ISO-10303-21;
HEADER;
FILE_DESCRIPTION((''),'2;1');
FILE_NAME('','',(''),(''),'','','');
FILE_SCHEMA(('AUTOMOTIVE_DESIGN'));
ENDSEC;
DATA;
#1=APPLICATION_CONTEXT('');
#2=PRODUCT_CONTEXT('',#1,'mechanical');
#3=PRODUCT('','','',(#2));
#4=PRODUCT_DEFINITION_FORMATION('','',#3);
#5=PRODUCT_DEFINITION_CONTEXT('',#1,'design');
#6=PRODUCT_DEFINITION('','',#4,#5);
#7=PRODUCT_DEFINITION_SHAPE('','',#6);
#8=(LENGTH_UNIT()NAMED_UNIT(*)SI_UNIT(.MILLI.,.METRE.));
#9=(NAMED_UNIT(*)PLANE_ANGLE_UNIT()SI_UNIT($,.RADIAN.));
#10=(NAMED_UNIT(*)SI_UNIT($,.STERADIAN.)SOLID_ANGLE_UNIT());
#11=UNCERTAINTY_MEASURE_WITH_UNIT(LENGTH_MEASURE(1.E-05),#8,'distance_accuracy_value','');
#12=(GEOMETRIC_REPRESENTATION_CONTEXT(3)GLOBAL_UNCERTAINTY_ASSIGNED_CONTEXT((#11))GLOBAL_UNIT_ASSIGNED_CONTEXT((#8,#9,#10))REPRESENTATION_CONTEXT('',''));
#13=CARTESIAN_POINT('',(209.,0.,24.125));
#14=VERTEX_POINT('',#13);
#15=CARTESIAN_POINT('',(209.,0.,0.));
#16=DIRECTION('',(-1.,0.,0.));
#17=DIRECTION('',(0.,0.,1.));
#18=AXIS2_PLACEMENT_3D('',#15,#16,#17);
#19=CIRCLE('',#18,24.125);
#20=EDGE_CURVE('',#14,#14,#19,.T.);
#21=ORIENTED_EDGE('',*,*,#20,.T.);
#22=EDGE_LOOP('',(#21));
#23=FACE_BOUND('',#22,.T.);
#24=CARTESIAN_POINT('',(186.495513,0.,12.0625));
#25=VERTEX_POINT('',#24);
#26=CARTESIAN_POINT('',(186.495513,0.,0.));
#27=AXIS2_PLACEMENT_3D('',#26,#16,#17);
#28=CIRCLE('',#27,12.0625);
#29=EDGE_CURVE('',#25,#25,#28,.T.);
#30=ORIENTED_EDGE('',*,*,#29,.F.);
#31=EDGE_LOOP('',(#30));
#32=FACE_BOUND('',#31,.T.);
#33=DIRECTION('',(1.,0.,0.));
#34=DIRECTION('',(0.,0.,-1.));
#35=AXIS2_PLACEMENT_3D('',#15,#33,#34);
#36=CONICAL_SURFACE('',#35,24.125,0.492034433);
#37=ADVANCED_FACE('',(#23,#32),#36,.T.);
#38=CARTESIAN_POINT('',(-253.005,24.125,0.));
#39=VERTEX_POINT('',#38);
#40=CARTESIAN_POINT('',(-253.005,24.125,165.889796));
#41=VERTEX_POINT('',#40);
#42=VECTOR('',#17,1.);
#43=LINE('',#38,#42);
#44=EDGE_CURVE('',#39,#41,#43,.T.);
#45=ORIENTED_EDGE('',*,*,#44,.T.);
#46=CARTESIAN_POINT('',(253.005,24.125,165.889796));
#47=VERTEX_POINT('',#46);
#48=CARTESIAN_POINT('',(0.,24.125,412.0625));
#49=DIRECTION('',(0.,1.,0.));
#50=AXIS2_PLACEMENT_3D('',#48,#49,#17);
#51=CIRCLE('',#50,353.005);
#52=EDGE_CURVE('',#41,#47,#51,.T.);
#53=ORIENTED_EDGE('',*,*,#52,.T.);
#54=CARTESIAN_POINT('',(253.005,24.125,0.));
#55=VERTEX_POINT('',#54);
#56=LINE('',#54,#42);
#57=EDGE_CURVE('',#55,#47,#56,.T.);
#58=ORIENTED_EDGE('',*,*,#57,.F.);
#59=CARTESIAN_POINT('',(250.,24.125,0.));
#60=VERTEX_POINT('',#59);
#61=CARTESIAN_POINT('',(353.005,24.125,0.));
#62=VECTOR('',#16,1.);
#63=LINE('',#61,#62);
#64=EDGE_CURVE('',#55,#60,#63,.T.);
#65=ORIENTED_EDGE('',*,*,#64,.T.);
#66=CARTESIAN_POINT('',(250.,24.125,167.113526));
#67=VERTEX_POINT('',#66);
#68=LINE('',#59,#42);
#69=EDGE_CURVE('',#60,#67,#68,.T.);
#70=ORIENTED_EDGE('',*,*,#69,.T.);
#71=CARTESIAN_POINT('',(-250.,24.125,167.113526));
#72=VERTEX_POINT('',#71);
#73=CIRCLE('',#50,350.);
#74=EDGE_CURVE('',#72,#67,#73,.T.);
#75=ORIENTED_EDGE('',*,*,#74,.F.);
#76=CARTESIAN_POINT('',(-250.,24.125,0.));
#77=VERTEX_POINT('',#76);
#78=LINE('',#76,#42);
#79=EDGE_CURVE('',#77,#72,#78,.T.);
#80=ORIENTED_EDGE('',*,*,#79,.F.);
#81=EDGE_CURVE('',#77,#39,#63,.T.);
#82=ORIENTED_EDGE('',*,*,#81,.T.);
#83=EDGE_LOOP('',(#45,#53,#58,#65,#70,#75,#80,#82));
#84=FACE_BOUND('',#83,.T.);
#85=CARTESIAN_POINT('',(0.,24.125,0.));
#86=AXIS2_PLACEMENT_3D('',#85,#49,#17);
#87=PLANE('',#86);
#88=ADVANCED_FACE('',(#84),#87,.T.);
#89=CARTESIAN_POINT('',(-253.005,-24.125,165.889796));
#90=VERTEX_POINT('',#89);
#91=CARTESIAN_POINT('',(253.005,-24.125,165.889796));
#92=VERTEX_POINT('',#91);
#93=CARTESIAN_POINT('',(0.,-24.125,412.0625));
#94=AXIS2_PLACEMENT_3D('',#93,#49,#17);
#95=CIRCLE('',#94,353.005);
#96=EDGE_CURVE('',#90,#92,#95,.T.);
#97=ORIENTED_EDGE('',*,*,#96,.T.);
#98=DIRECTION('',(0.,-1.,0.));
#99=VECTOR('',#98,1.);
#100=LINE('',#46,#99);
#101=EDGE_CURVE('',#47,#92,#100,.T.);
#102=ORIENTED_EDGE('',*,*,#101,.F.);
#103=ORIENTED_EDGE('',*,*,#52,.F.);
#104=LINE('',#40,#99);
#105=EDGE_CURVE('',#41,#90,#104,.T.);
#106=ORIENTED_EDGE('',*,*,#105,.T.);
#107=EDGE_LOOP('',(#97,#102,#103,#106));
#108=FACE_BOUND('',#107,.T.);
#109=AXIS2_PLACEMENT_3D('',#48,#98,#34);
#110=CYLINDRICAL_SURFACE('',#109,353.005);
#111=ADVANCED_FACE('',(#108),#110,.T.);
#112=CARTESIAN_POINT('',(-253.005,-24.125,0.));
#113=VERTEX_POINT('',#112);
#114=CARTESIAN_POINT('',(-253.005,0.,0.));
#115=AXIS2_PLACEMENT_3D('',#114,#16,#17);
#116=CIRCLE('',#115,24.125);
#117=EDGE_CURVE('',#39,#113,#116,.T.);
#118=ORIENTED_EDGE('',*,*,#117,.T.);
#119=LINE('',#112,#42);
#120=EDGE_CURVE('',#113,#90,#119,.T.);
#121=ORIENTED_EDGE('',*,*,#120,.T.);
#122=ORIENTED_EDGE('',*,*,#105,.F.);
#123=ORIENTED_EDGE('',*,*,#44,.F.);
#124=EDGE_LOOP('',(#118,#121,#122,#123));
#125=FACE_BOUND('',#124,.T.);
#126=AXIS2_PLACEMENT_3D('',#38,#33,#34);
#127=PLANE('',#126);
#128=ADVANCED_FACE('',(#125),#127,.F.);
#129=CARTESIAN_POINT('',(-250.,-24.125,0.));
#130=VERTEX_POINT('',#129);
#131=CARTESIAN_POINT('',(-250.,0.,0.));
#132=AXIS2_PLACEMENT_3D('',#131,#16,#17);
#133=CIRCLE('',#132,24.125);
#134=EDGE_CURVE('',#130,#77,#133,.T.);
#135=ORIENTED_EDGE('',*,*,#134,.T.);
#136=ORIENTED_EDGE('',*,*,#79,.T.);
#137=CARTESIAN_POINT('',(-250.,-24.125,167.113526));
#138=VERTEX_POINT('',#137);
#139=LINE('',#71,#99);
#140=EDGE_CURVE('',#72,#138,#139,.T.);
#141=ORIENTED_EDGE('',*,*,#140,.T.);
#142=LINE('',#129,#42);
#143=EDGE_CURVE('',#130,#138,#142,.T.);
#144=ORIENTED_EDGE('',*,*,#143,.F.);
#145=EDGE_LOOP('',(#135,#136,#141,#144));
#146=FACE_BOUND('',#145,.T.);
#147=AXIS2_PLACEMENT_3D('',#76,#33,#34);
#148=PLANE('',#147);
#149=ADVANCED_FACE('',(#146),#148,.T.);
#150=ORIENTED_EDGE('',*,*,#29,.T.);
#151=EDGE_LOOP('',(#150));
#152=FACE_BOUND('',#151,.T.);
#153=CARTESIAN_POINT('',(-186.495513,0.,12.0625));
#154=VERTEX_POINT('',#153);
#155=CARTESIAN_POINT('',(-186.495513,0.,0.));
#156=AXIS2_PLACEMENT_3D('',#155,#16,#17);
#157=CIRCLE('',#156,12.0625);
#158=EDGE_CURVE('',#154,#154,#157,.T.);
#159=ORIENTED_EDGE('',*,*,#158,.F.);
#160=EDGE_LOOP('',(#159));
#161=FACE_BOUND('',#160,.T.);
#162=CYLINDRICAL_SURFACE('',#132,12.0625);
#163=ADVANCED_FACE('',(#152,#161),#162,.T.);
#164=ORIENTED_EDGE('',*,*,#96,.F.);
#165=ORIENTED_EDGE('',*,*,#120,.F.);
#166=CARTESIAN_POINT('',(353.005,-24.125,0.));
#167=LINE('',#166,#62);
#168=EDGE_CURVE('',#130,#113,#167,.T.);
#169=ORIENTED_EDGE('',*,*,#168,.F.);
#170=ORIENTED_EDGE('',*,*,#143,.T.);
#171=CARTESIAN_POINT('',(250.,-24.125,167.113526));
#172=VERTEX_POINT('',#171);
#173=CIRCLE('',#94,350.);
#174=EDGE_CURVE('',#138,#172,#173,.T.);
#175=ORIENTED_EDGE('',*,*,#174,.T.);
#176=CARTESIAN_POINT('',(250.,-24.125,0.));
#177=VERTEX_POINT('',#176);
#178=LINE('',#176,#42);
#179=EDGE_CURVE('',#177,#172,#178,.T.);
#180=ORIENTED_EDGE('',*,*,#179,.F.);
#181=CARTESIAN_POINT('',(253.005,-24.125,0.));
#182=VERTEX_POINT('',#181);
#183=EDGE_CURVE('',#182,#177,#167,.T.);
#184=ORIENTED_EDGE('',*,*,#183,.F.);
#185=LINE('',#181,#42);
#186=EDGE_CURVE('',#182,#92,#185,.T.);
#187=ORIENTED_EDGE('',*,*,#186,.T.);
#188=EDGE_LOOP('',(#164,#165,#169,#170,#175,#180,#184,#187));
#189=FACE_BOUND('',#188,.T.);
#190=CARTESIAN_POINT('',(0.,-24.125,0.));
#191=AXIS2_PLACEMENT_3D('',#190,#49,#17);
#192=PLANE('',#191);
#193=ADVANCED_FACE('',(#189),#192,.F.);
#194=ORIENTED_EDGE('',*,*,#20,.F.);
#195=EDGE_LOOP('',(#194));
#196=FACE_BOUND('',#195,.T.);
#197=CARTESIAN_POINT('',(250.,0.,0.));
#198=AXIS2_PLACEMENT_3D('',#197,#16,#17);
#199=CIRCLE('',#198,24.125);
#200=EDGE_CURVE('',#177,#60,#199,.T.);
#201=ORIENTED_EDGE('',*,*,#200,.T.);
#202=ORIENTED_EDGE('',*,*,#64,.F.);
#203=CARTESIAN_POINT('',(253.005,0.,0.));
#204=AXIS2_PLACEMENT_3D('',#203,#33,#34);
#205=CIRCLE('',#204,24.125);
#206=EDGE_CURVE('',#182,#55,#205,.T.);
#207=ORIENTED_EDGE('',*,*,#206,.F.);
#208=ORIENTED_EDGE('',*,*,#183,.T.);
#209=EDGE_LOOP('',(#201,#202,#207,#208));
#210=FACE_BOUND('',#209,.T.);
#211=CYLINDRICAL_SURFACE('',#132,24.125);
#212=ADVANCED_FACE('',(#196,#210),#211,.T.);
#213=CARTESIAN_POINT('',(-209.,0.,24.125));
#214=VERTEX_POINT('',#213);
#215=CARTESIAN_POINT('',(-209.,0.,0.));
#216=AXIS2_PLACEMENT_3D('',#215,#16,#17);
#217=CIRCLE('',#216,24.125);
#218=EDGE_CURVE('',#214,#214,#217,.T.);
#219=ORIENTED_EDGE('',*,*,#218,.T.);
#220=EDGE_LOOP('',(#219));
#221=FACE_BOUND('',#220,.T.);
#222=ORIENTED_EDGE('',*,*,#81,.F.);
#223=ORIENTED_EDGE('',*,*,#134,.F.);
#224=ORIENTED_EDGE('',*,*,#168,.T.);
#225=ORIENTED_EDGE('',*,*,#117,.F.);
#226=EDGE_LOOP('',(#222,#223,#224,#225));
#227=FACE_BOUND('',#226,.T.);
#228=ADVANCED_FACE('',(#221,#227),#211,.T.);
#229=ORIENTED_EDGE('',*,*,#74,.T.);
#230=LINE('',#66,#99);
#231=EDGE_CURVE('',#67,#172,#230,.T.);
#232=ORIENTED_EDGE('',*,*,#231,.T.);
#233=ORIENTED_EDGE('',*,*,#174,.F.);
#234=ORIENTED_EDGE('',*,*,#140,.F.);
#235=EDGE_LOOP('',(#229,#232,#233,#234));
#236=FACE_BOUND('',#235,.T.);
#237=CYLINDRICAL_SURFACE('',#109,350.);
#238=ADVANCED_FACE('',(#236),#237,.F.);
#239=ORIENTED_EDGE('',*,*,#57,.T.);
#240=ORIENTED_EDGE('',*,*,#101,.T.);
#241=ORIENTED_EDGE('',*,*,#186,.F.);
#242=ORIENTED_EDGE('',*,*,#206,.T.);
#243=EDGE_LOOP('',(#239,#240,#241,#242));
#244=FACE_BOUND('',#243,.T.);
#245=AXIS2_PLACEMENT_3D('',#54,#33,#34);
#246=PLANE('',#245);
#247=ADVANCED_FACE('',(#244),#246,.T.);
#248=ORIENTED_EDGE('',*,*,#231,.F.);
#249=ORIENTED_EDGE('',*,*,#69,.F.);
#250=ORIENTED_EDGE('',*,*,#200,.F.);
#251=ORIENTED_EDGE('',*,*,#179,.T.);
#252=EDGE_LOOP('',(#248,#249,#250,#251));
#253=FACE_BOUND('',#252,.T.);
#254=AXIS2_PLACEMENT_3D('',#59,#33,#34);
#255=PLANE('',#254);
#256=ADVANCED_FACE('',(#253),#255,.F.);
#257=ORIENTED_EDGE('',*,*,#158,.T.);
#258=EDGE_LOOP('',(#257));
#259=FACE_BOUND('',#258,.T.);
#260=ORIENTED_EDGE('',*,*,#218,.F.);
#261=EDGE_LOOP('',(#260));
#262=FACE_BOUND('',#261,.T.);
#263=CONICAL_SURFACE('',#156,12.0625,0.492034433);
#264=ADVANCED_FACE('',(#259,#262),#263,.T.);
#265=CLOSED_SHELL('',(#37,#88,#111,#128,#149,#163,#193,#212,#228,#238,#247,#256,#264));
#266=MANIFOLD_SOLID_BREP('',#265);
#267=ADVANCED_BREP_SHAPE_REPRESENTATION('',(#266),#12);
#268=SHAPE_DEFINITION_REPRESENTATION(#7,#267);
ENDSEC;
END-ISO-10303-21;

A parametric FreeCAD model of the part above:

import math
import FreeCAD as App
import Part
import Sketcher

doc = App.newDocument("Part")
body = doc.addObject("PartDesign::Body", "Body")

# Sketch on XZ plane
sketch1 = doc.addObject("Sketcher::SketchObject", "Sketch")
body.addObject(sketch1)
sketch1.AttachmentSupport = (doc.XZ_Plane, [""])
sketch1.MapMode = "FlatFace"
sketch1.addGeometry(Part.LineSegment(App.Vector(-250, 0, 0), App.Vector(250, 0, 0)), False)
sketch1.addGeometry(Part.LineSegment(App.Vector(250, 0, 0), App.Vector(250, -24, 0)), False)
sketch1.addGeometry(Part.LineSegment(App.Vector(250, -24, 0), App.Vector(209, -24, 0)), False)
sketch1.addGeometry(Part.LineSegment(App.Vector(209, -24, 0), App.Vector(186, -12, 0)), False)
sketch1.addGeometry(Part.LineSegment(App.Vector(186, -12, 0), App.Vector(-186, -12, 0)), False)
sketch1.addGeometry(Part.LineSegment(App.Vector(-186, -12, 0), App.Vector(-209, -24, 0)), False)
sketch1.addGeometry(Part.LineSegment(App.Vector(-209, -24, 0), App.Vector(-250, -24, 0)), False)
sketch1.addGeometry(Part.LineSegment(App.Vector(-250, -24, 0), App.Vector(-250, 0, 0)), False)
sketch1.addConstraint(Sketcher.Constraint("Coincident", 0, 2, 1, 1))
sketch1.addConstraint(Sketcher.Constraint("Coincident", 1, 2, 2, 1))
sketch1.addConstraint(Sketcher.Constraint("Coincident", 2, 2, 3, 1))
sketch1.addConstraint(Sketcher.Constraint("Coincident", 3, 2, 4, 1))
sketch1.addConstraint(Sketcher.Constraint("Coincident", 4, 2, 5, 1))
sketch1.addConstraint(Sketcher.Constraint("Coincident", 5, 2, 6, 1))
sketch1.addConstraint(Sketcher.Constraint("Coincident", 6, 2, 7, 1))
sketch1.addConstraint(Sketcher.Constraint("Coincident", 7, 2, 0, 1))
sketch1.addConstraint(Sketcher.Constraint("Horizontal", 0))
sketch1.addConstraint(Sketcher.Constraint("Vertical", 1))
sketch1.addConstraint(Sketcher.Constraint("Horizontal", 2))
sketch1.addConstraint(Sketcher.Constraint("Horizontal", 4))
sketch1.addConstraint(Sketcher.Constraint("Horizontal", 6))
sketch1.addConstraint(Sketcher.Constraint("Vertical", 7))
sketch1.addConstraint(Sketcher.Constraint("Symmetric", 0, 2, 7, 2, -1, 1))
sketch1.addConstraint(Sketcher.Constraint("Symmetric", 2, 2, 5, 2, -2))
sketch1.addConstraint(Sketcher.Constraint("Equal", 3, 5))
sketch1.addConstraint(Sketcher.Constraint("DistanceX", 0, 1, 0, 2, 500.0))
sketch1.addConstraint(Sketcher.Constraint("DistanceX", 2, 2, 2, 1, 41.0))
sketch1.addConstraint(Sketcher.Constraint("DistanceY", 1, 2, 1, 1, 24.125))
sketch1.addConstraint(Sketcher.Constraint("DistanceY", 3, 2, -1, 1, 12.0625))
sketch1.addConstraint(Sketcher.Constraint("DistanceX", 4, 2, 4, 1, 372.991026))
revolution = doc.addObject("PartDesign::Revolution", "Revolution")
body.addObject(revolution)
revolution.Profile = sketch1
revolution.ReferenceAxis = (sketch1, ["H_Axis"])
revolution.Angle = 360

# Sketch on XZ plane
sketch2 = doc.addObject("Sketcher::SketchObject", "Sketch001")
body.addObject(sketch2)
sketch2.AttachmentSupport = (doc.XZ_Plane, [""])
sketch2.MapMode = "FlatFace"
sketch2.addGeometry(Part.ArcOfCircle(Part.Circle(App.Vector(0, 412.1, 0), App.Vector(0, 0, 1), 353), math.radians(-44), math.radians(224)), False)
sketch2.addGeometry(Part.LineSegment(App.Vector(253, 165.9, 0), App.Vector(253, -24.1, 0)), False)
sketch2.addGeometry(Part.LineSegment(App.Vector(253, -24.1, 0), App.Vector(250, -24.1, 0)), False)
sketch2.addGeometry(Part.LineSegment(App.Vector(250, -24.1, 0), App.Vector(250, 167.1, 0)), False)
sketch2.addGeometry(Part.ArcOfCircle(Part.Circle(App.Vector(0, 412.1, 0), App.Vector(0, 0, 1), 350), math.radians(-44), math.radians(224)), False)
sketch2.addGeometry(Part.LineSegment(App.Vector(-250, 167.1, 0), App.Vector(-250, -24.1, 0)), False)
sketch2.addGeometry(Part.LineSegment(App.Vector(-250, -24.1, 0), App.Vector(-253, -24.1, 0)), False)
sketch2.addGeometry(Part.LineSegment(App.Vector(-253, -24.1, 0), App.Vector(-253, 165.9, 0)), False)
sketch2.addConstraint(Sketcher.Constraint("Coincident", 0, 1, 1, 1))
sketch2.addConstraint(Sketcher.Constraint("Coincident", 1, 2, 2, 1))
sketch2.addConstraint(Sketcher.Constraint("Coincident", 2, 2, 3, 1))
sketch2.addConstraint(Sketcher.Constraint("Coincident", 3, 2, 4, 1))
sketch2.addConstraint(Sketcher.Constraint("Coincident", 4, 2, 5, 1))
sketch2.addConstraint(Sketcher.Constraint("Coincident", 5, 2, 6, 1))
sketch2.addConstraint(Sketcher.Constraint("Coincident", 6, 2, 7, 1))
sketch2.addConstraint(Sketcher.Constraint("Coincident", 7, 2, 0, 2))
sketch2.addConstraint(Sketcher.Constraint("Vertical", 1))
sketch2.addConstraint(Sketcher.Constraint("Horizontal", 2))
sketch2.addConstraint(Sketcher.Constraint("Vertical", 3))
sketch2.addConstraint(Sketcher.Constraint("Vertical", 5))
sketch2.addConstraint(Sketcher.Constraint("Horizontal", 6))
sketch2.addConstraint(Sketcher.Constraint("Vertical", 7))
sketch2.addConstraint(Sketcher.Constraint("Coincident", 4, 3, 0, 3))
sketch2.addConstraint(Sketcher.Constraint("Symmetric", 3, 2, 4, 2, -2))
sketch2.addConstraint(Sketcher.Constraint("Symmetric", 1, 2, 6, 2, -2))
sketch2.addConstraint(Sketcher.Constraint("Radius", 4, 350.0))
sketch2.addConstraint(Sketcher.Constraint("DistanceX", -1, 1, 2, 2, 250.0))
sketch2.addConstraint(Sketcher.Constraint("Radius", 0, 353.005))
sketch2.addConstraint(Sketcher.Constraint("DistanceX", 2, 2, 2, 1, 3.005))
sketch2.addConstraint(Sketcher.Constraint("DistanceY", 1, 2, -1, 1, 24.125))
sketch2.addConstraint(Sketcher.Constraint("DistanceY", -1, 1, 0, 3, 412.0625))
pad1 = doc.addObject("PartDesign::Pad", "Pad")
body.addObject(pad1)
pad1.Profile = sketch2
pad1.Length = 48.25
pad1.Midplane = True

# Sketch on YZ plane
sketch3 = doc.addObject("Sketcher::SketchObject", "Sketch002")
body.addObject(sketch3)
sketch3.AttachmentSupport = (doc.YZ_Plane, [""])
sketch3.MapMode = "FlatFace"
sketch3.AttachmentOffset = App.Placement(App.Vector(0, 0, -253.005), App.Rotation())
sketch3.addGeometry(Part.ArcOfCircle(Part.Circle(App.Vector(0, 0, 0), App.Vector(0, 0, 1), 24), math.radians(-90), math.radians(0)), False)
sketch3.addGeometry(Part.LineSegment(App.Vector(24, 0, 0), App.Vector(24, -24, 0)), False)
sketch3.addGeometry(Part.LineSegment(App.Vector(24, -24, 0), App.Vector(0, -24, 0)), False)
sketch3.addGeometry(Part.ArcOfCircle(Part.Circle(App.Vector(0, 0, 0), App.Vector(0, 0, 1), 24), math.radians(180), math.radians(270)), False)
sketch3.addGeometry(Part.LineSegment(App.Vector(0, -24, 0), App.Vector(-24, -24, 0)), False)
sketch3.addGeometry(Part.LineSegment(App.Vector(-24, -24, 0), App.Vector(-24, 0, 0)), False)
sketch3.addConstraint(Sketcher.Constraint("Tangent", 0, 2, 1, 1))
sketch3.addConstraint(Sketcher.Constraint("Coincident", 1, 2, 2, 1))
sketch3.addConstraint(Sketcher.Constraint("Tangent", 2, 2, 0, 1))
sketch3.addConstraint(Sketcher.Constraint("Tangent", 3, 2, 4, 1))
sketch3.addConstraint(Sketcher.Constraint("Coincident", 4, 2, 5, 1))
sketch3.addConstraint(Sketcher.Constraint("Tangent", 5, 2, 3, 1))
sketch3.addConstraint(Sketcher.Constraint("Vertical", 1))
sketch3.addConstraint(Sketcher.Constraint("Horizontal", 2))
sketch3.addConstraint(Sketcher.Constraint("Horizontal", 4))
sketch3.addConstraint(Sketcher.Constraint("Vertical", 5))
sketch3.addConstraint(Sketcher.Constraint("Coincident", 0, 3, -1, 1))
sketch3.addConstraint(Sketcher.Constraint("Coincident", 3, 3, -1, 1))
sketch3.addConstraint(Sketcher.Constraint("Equal", 0, 3))
sketch3.addConstraint(Sketcher.Constraint("Radius", 0, 24.125))
pocket1 = doc.addObject("PartDesign::Pocket", "Pocket")
body.addObject(pocket1)
pocket1.Profile = sketch3
pocket1.Type = "ThroughAll"
pocket1.Reversed = True

doc.recompute()
